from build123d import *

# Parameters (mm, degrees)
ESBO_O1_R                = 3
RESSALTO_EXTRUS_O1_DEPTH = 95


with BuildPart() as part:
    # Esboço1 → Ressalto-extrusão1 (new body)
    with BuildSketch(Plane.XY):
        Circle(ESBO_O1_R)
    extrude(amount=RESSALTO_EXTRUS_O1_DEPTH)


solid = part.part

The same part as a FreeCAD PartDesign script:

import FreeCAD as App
import Part
import Sketcher
Q = App.Units.Quantity

doc = App.newDocument("Part")
body = doc.addObject("PartDesign::Body", "Body")

sketch1 = body.newObject("Sketcher::SketchObject", "Sketch")
sketch1.AttachmentSupport = (doc.getObject("XY_Plane"), [""])
sketch1.MapMode = "FlatFace"
sketch1.addGeometry(Part.Circle(App.Vector(0, 0, 0), App.Vector(0, 0, 1), 3), False)
sketch1.addConstraint([
    Sketcher.Constraint("Coincident", 0, 3, -1, 1),
    Sketcher.Constraint("Diameter", 0, Q("6 mm")),
])
pad1 = body.newObject("PartDesign::Pad", "Pad")
pad1.Profile = sketch1
pad1.Length = 95

doc.recompute()
